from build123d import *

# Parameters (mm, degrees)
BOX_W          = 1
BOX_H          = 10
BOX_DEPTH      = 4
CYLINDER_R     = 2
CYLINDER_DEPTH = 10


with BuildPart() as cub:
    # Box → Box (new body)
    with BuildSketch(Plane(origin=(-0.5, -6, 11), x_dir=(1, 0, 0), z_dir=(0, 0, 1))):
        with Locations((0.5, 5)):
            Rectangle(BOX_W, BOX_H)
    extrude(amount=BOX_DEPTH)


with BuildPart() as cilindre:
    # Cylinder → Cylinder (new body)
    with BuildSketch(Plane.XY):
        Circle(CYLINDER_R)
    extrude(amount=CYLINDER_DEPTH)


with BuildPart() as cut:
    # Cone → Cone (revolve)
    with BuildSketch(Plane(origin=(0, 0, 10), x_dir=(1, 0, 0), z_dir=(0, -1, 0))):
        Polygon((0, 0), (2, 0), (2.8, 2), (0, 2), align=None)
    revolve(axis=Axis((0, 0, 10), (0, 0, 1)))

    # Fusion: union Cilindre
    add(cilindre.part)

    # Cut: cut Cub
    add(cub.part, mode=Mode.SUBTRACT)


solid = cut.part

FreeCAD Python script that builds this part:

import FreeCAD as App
import Part
import Sketcher
from FreeCAD import Vector


def add_polygon(sketch, points):
    """Adds a closed chain of lines whose ends are joined by coincident constraints."""
    first, n = sketch.GeometryCount, len(points)
    for a, b in zip(points, points[1:] + points[:1]):
        sketch.addGeometry(Part.LineSegment(App.Vector(*a, 0), App.Vector(*b, 0)), False)
    for i in range(n):
        sketch.addConstraint(Sketcher.Constraint("Coincident", first + i, 2, first + (i + 1) % n, 1))

doc = App.newDocument("Part")
body = doc.addObject("PartDesign::Body", "Body")

# Sketch on XY plane
sketch1 = doc.addObject("Sketcher::SketchObject", "Sketch")
body.addObject(sketch1)
sketch1.AttachmentSupport = (doc.XY_Plane, [""])
sketch1.MapMode = "FlatFace"
sketch1.AttachmentOffset = App.Placement(Vector(0, 0, 11), App.Rotation())
add_polygon(sketch1, [(-0.5, 4), (-0.5, -6), (0.5, -6), (0.5, 4)])  # lines 0-3
sketch1.addConstraint([
    Sketcher.Constraint("Vertical", 0),
    Sketcher.Constraint("Horizontal", 1),
    Sketcher.Constraint("Vertical", 2),
    Sketcher.Constraint("Horizontal", 3),
    Sketcher.Constraint("DistanceX", 1, 1, 1, 2, 1.0),
    Sketcher.Constraint("DistanceY", 0, 2, 0, 1, 10.0),
    Sketcher.Constraint("DistanceY", 0, 2, -1, 1, 6.0),
    Sketcher.Constraint("DistanceX", 0, 2, -1, 1, 0.5),
])
pad1 = doc.addObject("PartDesign::Pad", "Pad")
body.addObject(pad1)
pad1.Profile = sketch1
pad1.Length = 4
body2 = doc.addObject("PartDesign::Body", "Body001")

# Sketch on XY plane
sketch2 = doc.addObject("Sketcher::SketchObject", "Sketch001")
body2.addObject(sketch2)
sketch2.AttachmentSupport = (doc.getObject("XY_Plane001"), [""])
sketch2.MapMode = "FlatFace"
sketch2.addGeometry(Part.Circle(Vector(0, 0, 0), Vector(0, 0, 1), 2), False)
sketch2.addConstraint([
    Sketcher.Constraint("Coincident", 0, 3, -1, 1),
    Sketcher.Constraint("Diameter", 0, 4.0),
])
pad2 = doc.addObject("PartDesign::Pad", "Pad001")
body2.addObject(pad2)
pad2.Profile = sketch2
pad2.Length = 10
body3 = doc.addObject("PartDesign::Body", "Body002")

# Sketch on XZ plane
sketch3 = doc.addObject("Sketcher::SketchObject", "Sketch002")
body3.addObject(sketch3)
sketch3.AttachmentSupport = (doc.getObject("XZ_Plane002"), [""])
sketch3.MapMode = "FlatFace"
add_polygon(sketch3, [(0, 10), (2, 10), (2.8, 12), (0, 12)])  # lines 0-3
sketch3.addConstraint([
    Sketcher.Constraint("Horizontal", 0),
    Sketcher.Constraint("Horizontal", 2),
    Sketcher.Constraint("Vertical", 3),
    Sketcher.Constraint("PointOnObject", 2, 2, -2),
    Sketcher.Constraint("Equal", 0, 3),
    Sketcher.Constraint("DistanceX", 0, 1, 0, 2, 2.0),
    Sketcher.Constraint("DistanceX", 2, 2, 2, 1, 2.8),
    Sketcher.Constraint("DistanceY", -1, 1, 0, 2, 10.0),
])
revolution = doc.addObject("PartDesign::Revolution", "Revolution")
body3.addObject(revolution)
revolution.Profile = sketch3
revolution.ReferenceAxis = (sketch3, ["V_Axis"])
revolution.Angle = 360
doc.recompute()

boolean = doc.addObject("PartDesign::Boolean", "Boolean")
body3.addObject(boolean)
boolean.Type = "Fuse"
boolean.addObjects([body2])
doc.recompute()

boolean2 = doc.addObject("PartDesign::Boolean", "Boolean001")
body3.addObject(boolean2)
boolean2.Type = "Cut"
boolean2.addObjects([body])

doc.recompute()
